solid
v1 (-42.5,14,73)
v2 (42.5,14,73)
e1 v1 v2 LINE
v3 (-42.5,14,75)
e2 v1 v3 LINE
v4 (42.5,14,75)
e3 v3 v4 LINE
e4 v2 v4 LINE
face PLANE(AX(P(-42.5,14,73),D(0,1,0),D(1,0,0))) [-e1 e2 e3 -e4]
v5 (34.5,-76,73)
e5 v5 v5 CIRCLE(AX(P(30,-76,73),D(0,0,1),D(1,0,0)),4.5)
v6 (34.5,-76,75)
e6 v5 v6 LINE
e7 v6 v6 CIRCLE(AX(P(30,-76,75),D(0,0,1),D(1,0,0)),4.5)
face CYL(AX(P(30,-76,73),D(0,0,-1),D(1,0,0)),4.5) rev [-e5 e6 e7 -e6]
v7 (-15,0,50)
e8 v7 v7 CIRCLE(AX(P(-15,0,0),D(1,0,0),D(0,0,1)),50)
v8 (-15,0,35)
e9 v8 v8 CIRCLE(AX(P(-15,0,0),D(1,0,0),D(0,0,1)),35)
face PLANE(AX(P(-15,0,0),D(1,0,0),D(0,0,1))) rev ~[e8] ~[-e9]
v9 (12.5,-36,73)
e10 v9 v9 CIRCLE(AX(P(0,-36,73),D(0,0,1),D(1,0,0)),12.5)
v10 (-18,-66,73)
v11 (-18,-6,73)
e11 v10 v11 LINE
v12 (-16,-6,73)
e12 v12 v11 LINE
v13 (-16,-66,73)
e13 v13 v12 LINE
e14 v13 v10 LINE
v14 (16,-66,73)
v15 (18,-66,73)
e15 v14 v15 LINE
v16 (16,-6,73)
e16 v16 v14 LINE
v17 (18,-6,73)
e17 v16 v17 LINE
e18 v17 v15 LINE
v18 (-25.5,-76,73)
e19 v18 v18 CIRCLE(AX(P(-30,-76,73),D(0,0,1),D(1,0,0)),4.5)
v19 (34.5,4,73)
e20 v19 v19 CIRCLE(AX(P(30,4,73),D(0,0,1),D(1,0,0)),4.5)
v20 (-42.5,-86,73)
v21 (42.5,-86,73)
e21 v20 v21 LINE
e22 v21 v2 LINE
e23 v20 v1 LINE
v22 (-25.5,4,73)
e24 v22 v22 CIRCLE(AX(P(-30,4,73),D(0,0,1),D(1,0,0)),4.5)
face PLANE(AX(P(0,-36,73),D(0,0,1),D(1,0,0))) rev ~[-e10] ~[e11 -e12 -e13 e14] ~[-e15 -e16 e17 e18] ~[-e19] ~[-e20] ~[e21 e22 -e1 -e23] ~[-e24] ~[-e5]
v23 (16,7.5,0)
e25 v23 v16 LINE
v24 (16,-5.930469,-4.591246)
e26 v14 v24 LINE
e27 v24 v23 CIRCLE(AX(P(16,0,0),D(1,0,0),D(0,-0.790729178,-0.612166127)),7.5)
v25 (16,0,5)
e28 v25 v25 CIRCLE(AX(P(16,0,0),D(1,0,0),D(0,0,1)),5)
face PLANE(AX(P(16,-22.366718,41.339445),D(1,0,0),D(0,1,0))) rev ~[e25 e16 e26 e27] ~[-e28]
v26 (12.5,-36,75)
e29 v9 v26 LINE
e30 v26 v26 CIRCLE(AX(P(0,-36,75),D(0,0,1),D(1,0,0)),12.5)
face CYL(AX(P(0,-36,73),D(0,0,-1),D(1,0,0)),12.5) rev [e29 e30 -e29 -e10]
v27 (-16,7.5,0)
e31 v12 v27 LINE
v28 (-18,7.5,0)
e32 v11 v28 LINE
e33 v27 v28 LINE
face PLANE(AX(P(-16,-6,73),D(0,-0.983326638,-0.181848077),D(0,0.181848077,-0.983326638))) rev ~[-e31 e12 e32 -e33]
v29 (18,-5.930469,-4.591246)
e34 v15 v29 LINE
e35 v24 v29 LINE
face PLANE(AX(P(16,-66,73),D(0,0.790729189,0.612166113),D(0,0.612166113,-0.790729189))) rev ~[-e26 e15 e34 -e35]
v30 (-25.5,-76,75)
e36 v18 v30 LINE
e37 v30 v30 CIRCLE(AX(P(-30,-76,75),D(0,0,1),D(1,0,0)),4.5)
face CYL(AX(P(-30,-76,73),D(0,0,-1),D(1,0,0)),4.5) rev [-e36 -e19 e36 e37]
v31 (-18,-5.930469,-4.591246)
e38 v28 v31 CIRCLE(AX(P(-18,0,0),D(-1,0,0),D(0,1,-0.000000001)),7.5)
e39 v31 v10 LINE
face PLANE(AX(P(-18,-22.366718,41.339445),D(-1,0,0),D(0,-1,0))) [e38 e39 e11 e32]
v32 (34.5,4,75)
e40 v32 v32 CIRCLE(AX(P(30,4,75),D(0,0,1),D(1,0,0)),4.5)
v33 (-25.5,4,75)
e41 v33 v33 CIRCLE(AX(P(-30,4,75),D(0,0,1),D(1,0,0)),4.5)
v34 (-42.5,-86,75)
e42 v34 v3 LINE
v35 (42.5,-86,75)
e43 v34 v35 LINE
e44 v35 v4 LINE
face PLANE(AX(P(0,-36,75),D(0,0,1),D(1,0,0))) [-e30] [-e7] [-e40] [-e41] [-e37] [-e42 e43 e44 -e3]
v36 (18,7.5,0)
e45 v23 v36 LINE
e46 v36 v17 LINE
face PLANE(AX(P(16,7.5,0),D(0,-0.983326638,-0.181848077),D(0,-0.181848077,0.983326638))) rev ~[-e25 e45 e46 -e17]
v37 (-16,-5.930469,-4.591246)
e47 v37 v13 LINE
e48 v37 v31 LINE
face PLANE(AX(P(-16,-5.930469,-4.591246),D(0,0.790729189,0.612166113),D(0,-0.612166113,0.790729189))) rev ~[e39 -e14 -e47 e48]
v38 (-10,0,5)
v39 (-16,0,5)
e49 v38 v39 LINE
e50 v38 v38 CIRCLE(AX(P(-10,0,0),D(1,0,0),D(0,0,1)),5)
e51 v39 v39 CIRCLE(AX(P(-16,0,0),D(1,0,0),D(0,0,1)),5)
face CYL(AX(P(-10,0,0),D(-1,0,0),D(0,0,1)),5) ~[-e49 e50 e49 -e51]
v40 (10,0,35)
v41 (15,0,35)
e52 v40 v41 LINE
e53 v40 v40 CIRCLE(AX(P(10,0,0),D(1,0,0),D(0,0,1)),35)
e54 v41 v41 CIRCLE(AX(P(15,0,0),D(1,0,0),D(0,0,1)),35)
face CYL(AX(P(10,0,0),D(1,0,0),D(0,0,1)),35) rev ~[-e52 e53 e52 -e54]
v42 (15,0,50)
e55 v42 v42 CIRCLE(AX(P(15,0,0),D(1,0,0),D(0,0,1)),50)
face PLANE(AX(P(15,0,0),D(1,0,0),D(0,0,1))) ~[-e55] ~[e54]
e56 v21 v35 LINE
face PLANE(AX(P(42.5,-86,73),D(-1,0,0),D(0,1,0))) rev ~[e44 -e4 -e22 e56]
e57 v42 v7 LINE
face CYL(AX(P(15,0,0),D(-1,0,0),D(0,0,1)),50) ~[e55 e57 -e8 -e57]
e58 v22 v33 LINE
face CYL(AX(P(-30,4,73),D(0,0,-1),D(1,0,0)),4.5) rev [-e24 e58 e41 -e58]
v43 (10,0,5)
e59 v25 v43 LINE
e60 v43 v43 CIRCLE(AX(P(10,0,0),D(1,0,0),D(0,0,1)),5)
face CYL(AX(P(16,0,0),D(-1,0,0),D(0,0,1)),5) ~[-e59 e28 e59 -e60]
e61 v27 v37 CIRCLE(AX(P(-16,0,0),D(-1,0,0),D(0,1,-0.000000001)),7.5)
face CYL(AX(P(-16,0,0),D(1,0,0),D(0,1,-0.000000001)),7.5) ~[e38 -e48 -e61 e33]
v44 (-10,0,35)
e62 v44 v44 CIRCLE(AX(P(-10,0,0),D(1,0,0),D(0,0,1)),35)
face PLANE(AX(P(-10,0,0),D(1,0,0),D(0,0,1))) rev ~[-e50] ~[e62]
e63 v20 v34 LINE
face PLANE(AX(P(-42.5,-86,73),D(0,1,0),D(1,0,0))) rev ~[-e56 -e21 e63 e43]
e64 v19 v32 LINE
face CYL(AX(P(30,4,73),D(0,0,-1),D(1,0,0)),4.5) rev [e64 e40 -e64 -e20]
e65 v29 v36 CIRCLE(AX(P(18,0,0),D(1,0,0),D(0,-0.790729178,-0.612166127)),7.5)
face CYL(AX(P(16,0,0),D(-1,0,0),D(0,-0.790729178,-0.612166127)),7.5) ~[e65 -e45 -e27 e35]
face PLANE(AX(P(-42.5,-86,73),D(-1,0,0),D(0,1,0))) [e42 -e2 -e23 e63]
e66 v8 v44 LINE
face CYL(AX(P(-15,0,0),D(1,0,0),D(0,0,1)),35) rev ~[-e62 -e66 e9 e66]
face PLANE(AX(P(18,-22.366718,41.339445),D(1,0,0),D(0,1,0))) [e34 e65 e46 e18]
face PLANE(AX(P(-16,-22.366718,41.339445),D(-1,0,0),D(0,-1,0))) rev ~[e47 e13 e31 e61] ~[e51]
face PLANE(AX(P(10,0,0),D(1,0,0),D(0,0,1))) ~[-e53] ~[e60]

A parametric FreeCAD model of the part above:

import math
import FreeCAD as App
import Part
import Sketcher
from FreeCAD import Vector
Q = App.Units.Quantity

doc = App.newDocument("Part")
body = doc.addObject("PartDesign::Body", "Body")

sketch1 = body.newObject("Sketcher::SketchObject", "Sketch")
sketch1.AttachmentSupport = (doc.getObject("XZ_Plane"), [""])
sketch1.MapMode = "FlatFace"
sketch1.addGeometry(Part.LineSegment(Vector(16, 5, 0), Vector(10, 5, 0)), False)
sketch1.addGeometry(Part.LineSegment(Vector(10, 5, 0), Vector(10, 35, 0)), False)
sketch1.addGeometry(Part.LineSegment(Vector(10, 35, 0), Vector(15, 35, 0)), False)
sketch1.addGeometry(Part.LineSegment(Vector(15, 35, 0), Vector(15, 50, 0)), False)
sketch1.addGeometry(Part.LineSegment(Vector(15, 50, 0), Vector(-15, 50, 0)), False)
sketch1.addGeometry(Part.LineSegment(Vector(-15, 50, 0), Vector(-15, 35, 0)), False)
sketch1.addGeometry(Part.LineSegment(Vector(-15, 35, 0), Vector(-10, 35, 0)), False)
sketch1.addGeometry(Part.LineSegment(Vector(-10, 35, 0), Vector(-10, 5, 0)), False)
sketch1.addGeometry(Part.LineSegment(Vector(-10, 5, 0), Vector(-16, 5, 0)), False)
sketch1.addGeometry(Part.LineSegment(Vector(-16, 5, 0), Vector(-16, 0, 0)), False)
sketch1.addGeometry(Part.LineSegment(Vector(-16, 0, 0), Vector(16, 0, 0)), False)
sketch1.addGeometry(Part.LineSegment(Vector(16, 0, 0), Vector(16, 5, 0)), False)
sketch1.addConstraint(Sketcher.Constraint("Coincident", 0, 2, 1, 1))
sketch1.addConstraint(Sketcher.Constraint("Coincident", 1, 2, 2, 1))
sketch1.addConstraint(Sketcher.Constraint("Coincident", 2, 2, 3, 1))
sketch1.addConstraint(Sketcher.Constraint("Coincident", 3, 2, 4, 1))
sketch1.addConstraint(Sketcher.Constraint("Coincident", 4, 2, 5, 1))
sketch1.addConstraint(Sketcher.Constraint("Coincident", 5, 2, 6, 1))
sketch1.addConstraint(Sketcher.Constraint("Coincident", 6, 2, 7, 1))
sketch1.addConstraint(Sketcher.Constraint("Coincident", 7, 2, 8, 1))
sketch1.addConstraint(Sketcher.Constraint("Coincident", 8, 2, 9, 1))
sketch1.addConstraint(Sketcher.Constraint("Coincident", 9, 2, 10, 1))
sketch1.addConstraint(Sketcher.Constraint("Coincident", 10, 2, 11, 1))
sketch1.addConstraint(Sketcher.Constraint("Coincident", 11, 2, 0, 1))
sketch1.addConstraint(Sketcher.Constraint("Horizontal", 0))
sketch1.addConstraint(Sketcher.Constraint("Vertical", 1))
sketch1.addConstraint(Sketcher.Constraint("Horizontal", 2))
sketch1.addConstraint(Sketcher.Constraint("Vertical", 3))
sketch1.addConstraint(Sketcher.Constraint("Horizontal", 4))
sketch1.addConstraint(Sketcher.Constraint("Vertical", 5))
sketch1.addConstraint(Sketcher.Constraint("Horizontal", 6))
sketch1.addConstraint(Sketcher.Constraint("Vertical", 7))
sketch1.addConstraint(Sketcher.Constraint("Horizontal", 8))
sketch1.addConstraint(Sketcher.Constraint("Vertical", 9))
sketch1.addConstraint(Sketcher.Constraint("Horizontal", 10))
sketch1.addConstraint(Sketcher.Constraint("Vertical", 11))
sketch1.addConstraint(Sketcher.Constraint("Symmetric", 9, 2, 10, 2, -1, 1))
sketch1.addConstraint(Sketcher.Constraint("Symmetric", 2, 2, 5, 2, -2))
sketch1.addConstraint(Sketcher.Constraint("Symmetric", 0, 2, 7, 2, -2))
sketch1.addConstraint(Sketcher.Constraint("Equal", 4, 1))
sketch1.addConstraint(Sketcher.Constraint("Equal", 6, 9))
sketch1.addConstraint(Sketcher.Constraint("DistanceX", 0, 2, 0, 1, Q("6 mm")))
sketch1.addConstraint(Sketcher.Constraint("DistanceX", 2, 1, 2, 2, Q("5 mm")))
sketch1.addConstraint(Sketcher.Constraint("DistanceX", 4, 2, 4, 1, Q("30 mm")))
sketch1.addConstraint(Sketcher.Constraint("DistanceY", 3, 1, 3, 2, Q("15 mm")))
revolution = body.newObject("PartDesign::Revolution", "Revolution")
revolution.Profile = sketch1
revolution.ReferenceAxis = (sketch1, ["H_Axis"])
revolution.Angle = 360

sketch2 = body.newObject("Sketcher::SketchObject", "Sketch001")
sketch2.AttachmentSupport = (doc.getObject("YZ_Plane"), [""])
sketch2.MapMode = "FlatFace"
sketch2.AttachmentOffset = App.Placement(Vector(0, 0, -16), App.Rotation())
sketch2.addGeometry(Part.LineSegment(Vector(-6, 73, 0), Vector(8, 0, 0)), False)
sketch2.addGeometry(Part.ArcOfCircle(Part.Circle(Vector(0, 0, 0), Vector(0, 0, 1), 8), math.radians(-142), math.radians(0)), False)
sketch2.addGeometry(Part.LineSegment(Vector(-6, -5, 0), Vector(-66, 73, 0)), False)
sketch2.addGeometry(Part.LineSegment(Vector(-66, 73, 0), Vector(-6, 73, 0)), False)
sketch2.addConstraint(Sketcher.Constraint("Coincident", 0, 2, 1, 2))
sketch2.addConstraint(Sketcher.Constraint("Tangent", 1, 1, 2, 1))
sketch2.addConstraint(Sketcher.Constraint("Coincident", 2, 2, 3, 1))
sketch2.addConstraint(Sketcher.Constraint("Coincident", 3, 2, 0, 1))
sketch2.addConstraint(Sketcher.Constraint("Horizontal", 3))
sketch2.addConstraint(Sketcher.Constraint("Coincident", 1, 3, -1, 1))
sketch2.addConstraint(Sketcher.Constraint("PointOnObject", 0, 2, -1))
sketch2.addConstraint(Sketcher.Constraint("Radius", 1, Q("7.5 mm")))
sketch2.addConstraint(Sketcher.Constraint("DistanceX", 3, 1, 3, 2, Q("60 mm")))
sketch2.addConstraint(Sketcher.Constraint("DistanceX", 2, 2, -1, 1, Q("66 mm")))
sketch2.addConstraint(Sketcher.Constraint("DistanceY", -1, 1, 2, 2, Q("73 mm")))
pad1 = body.newObject("PartDesign::Pad", "Pad")
pad1.Profile = sketch2
pad1.Length = 2
pad1.Reversed = True

sketch3 = body.newObject("Sketcher::SketchObject", "Sketch002")
sketch3.AttachmentSupport = (doc.getObject("YZ_Plane"), [""])
sketch3.MapMode = "FlatFace"
sketch3.AttachmentOffset = App.Placement(Vector(0, 0, 16), App.Rotation())
sketch3.addGeometry(Part.ArcOfCircle(Part.Circle(Vector(0, 0, 0), Vector(0, 0, 1), 8), math.radians(-142), math.radians(0)), False)
sketch3.addGeometry(Part.LineSegment(Vector(8, 0, 0), Vector(-6, 73, 0)), False)
sketch3.addGeometry(Part.LineSegment(Vector(-6, 73, 0), Vector(-66, 73, 0)), False)
sketch3.addGeometry(Part.LineSegment(Vector(-66, 73, 0), Vector(-6, -5, 0)), False)
sketch3.addConstraint(Sketcher.Constraint("Coincident", 0, 2, 1, 1))
sketch3.addConstraint(Sketcher.Constraint("Coincident", 1, 2, 2, 1))
sketch3.addConstraint(Sketcher.Constraint("Coincident", 2, 2, 3, 1))
sketch3.addConstraint(Sketcher.Constraint("Tangent", 3, 2, 0, 1))
sketch3.addConstraint(Sketcher.Constraint("Horizontal", 2))
sketch3.addConstraint(Sketcher.Constraint("Coincident", 0, 3, -1, 1))
sketch3.addConstraint(Sketcher.Constraint("PointOnObject", 0, 2, -1))
sketch3.addConstraint(Sketcher.Constraint("Radius", 0, Q("7.5 mm")))
sketch3.addConstraint(Sketcher.Constraint("DistanceX", 2, 2, 2, 1, Q("60 mm")))
sketch3.addConstraint(Sketcher.Constraint("DistanceX", 1, 2, -1, 1, Q("6 mm")))
sketch3.addConstraint(Sketcher.Constraint("DistanceY", -1, 1, 1, 2, Q("73 mm")))
pad2 = body.newObject("PartDesign::Pad", "Pad001")
pad2.Profile = sketch3
pad2.Length = 2

sketch4 = body.newObject("Sketcher::SketchObject", "Sketch003")
sketch4.AttachmentSupport = (doc.getObject("XY_Plane"), [""])
sketch4.MapMode = "FlatFace"
sketch4.AttachmentOffset = App.Placement(Vector(0, 0, 73), App.Rotation())
sketch4.addGeometry(Part.LineSegment(Vector(-42.5, 14, 0), Vector(-42.5, -86, 0)), False)
sketch4.addGeometry(Part.LineSegment(Vector(-42.5, -86, 0), Vector(42.5, -86, 0)), False)
sketch4.addGeometry(Part.LineSegment(Vector(42.5, -86, 0), Vector(42.5, 14, 0)), False)
sketch4.addGeometry(Part.LineSegment(Vector(42.5, 14, 0), Vector(-42.5, 14, 0)), False)
sketch4.addGeometry(Part.Circle(Vector(-30, -76, 0), Vector(0, 0, 1), 4.5), False)
sketch4.addGeometry(Part.Circle(Vector(30, -76, 0), Vector(0, 0, 1), 4.5), False)
sketch4.addGeometry(Part.Circle(Vector(-30, 4, 0), Vector(0, 0, 1), 4.5), False)
sketch4.addGeometry(Part.Circle(Vector(0, -36, 0), Vector(0, 0, 1), 12.5), False)
sketch4.addGeometry(Part.Circle(Vector(30, 4, 0), Vector(0, 0, 1), 4.5), False)
sketch4.addConstraint(Sketcher.Constraint("Coincident", 0, 2, 1, 1))
sketch4.addConstraint(Sketcher.Constraint("Coincident", 1, 2, 2, 1))
sketch4.addConstraint(Sketcher.Constraint("Coincident", 2, 2, 3, 1))
sketch4.addConstraint(Sketcher.Constraint("Coincident", 3, 2, 0, 1))
sketch4.addConstraint(Sketcher.Constraint("Vertical", 0))
sketch4.addConstraint(Sketcher.Constraint("Horizontal", 1))
sketch4.addConstraint(Sketcher.Constraint("Vertical", 2))
sketch4.addConstraint(Sketcher.Constraint("Horizontal", 3))
sketch4.addConstraint(Sketcher.Constraint("Equal", 4, 5))
sketch4.addConstraint(Sketcher.Constraint("Equal", 5, 6))
sketch4.addConstraint(Sketcher.Constraint("Equal", 6, 8))
sketch4.addConstraint(Sketcher.Constraint("Symmetric", 4, 3, 5, 3, -2))
sketch4.addConstraint(Sketcher.Constraint("Symmetric", 6, 3, 8, 3, -2))
sketch4.addConstraint(Sketcher.Constraint("PointOnObject", 7, 3, -2))
sketch4.addConstraint(Sketcher.Constraint("Vertical", 4, 3, 6, 3))
sketch4.addConstraint(Sketcher.Constraint("Diameter", 4, Q("9 mm")))
sketch4.addConstraint(Sketcher.Constraint("Diameter", 7, Q("25 mm")))
sketch4.addConstraint(Sketcher.Constraint("DistanceX", 1, 1, 1, 2, Q("85 mm")))
sketch4.addConstraint(Sketcher.Constraint("DistanceY", 0, 2, 0, 1, Q("100 mm")))
sketch4.addConstraint(Sketcher.Constraint("DistanceX", 4, 3, -1, 1, Q("30 mm")))
sketch4.addConstraint(Sketcher.Constraint("DistanceY", 4, 3, -1, 1, Q("76 mm")))
sketch4.addConstraint(Sketcher.Constraint("DistanceY", -1, 1, 6, 3, Q("4 mm")))
sketch4.addConstraint(Sketcher.Constraint("DistanceY", 7, 3, -1, 1, Q("36 mm")))
sketch4.addConstraint(Sketcher.Constraint("DistanceY", 0, 2, -1, 1, Q("86 mm")))
sketch4.addConstraint(Sketcher.Constraint("DistanceX", 0, 2, -1, 1, Q("42.5 mm")))
pad3 = body.newObject("PartDesign::Pad", "Pad002")
pad3.Profile = sketch4
pad3.Length = 2

doc.recompute()
